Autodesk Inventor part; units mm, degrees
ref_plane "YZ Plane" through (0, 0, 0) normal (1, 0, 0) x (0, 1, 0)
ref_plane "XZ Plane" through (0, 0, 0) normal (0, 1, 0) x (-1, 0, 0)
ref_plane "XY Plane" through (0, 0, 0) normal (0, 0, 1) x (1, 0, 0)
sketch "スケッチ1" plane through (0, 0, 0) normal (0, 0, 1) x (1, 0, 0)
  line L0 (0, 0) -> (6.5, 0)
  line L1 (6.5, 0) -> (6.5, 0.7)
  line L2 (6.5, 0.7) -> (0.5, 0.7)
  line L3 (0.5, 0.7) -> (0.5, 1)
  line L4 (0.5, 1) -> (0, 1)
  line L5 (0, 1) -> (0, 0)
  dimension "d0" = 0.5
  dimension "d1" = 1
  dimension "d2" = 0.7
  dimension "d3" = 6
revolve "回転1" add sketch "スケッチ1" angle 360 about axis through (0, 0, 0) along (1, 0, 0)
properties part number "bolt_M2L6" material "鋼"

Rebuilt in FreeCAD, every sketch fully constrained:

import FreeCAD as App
import Part
import Sketcher

V = App.Vector
Q = App.Units.Quantity

doc = App.newDocument("Part")
params = doc.addObject("Spreadsheet::Sheet", "Params")
for row, (alias, value) in enumerate([
    ("sketch1_width", "6 mm"),
    ("sketch1_height", "1 mm"),
    ("sketch1_width2", "0.5 mm"),
    ("sketch1_height2", "0.7 mm"),
    ("revolution_angle", "360 deg"),
], start=1):
    params.set(f"A{row}", alias)
    params.set(f"B{row}", "=" + value)
    params.setAlias(f"B{row}", alias)

body = doc.addObject("PartDesign::Body", "Body")

# Sketch on XY plane
sketch1 = body.newObject("Sketcher::SketchObject", "Sketch")
sketch1.AttachmentSupport = (doc.getObject("XY_Plane"), [""])
sketch1.MapMode = "FlatFace"
sketch1.addGeometry([
    Part.LineSegment(V(0, 1, 0), V(0, 0, 0)),  # 0
    Part.LineSegment(V(0, 0, 0), V(6.5, 0, 0)),  # 1
    Part.LineSegment(V(6.5, 0, 0), V(6.5, 0.7, 0)),  # 2
    Part.LineSegment(V(6.5, 0.7, 0), V(0.5, 0.7, 0)),  # 3
    Part.LineSegment(V(0.5, 0.7, 0), V(0.5, 1, 0)),  # 4
    Part.LineSegment(V(0.5, 1, 0), V(0, 1, 0)),  # 5
], False)
sketch1.addConstraint([
    Sketcher.Constraint("Coincident", 0, 2, 1, 1),
    Sketcher.Constraint("Coincident", 1, 2, 2, 1),
    Sketcher.Constraint("Coincident", 2, 2, 3, 1),
    Sketcher.Constraint("Coincident", 3, 2, 4, 1),
    Sketcher.Constraint("Coincident", 4, 2, 5, 1),
    Sketcher.Constraint("Coincident", 5, 2, 0, 1),
    Sketcher.Constraint("Vertical", 0),
    Sketcher.Constraint("Horizontal", 1),
    Sketcher.Constraint("Vertical", 2),
    Sketcher.Constraint("Horizontal", 3),
    Sketcher.Constraint("Vertical", 4),
    Sketcher.Constraint("Horizontal", 5),
    Sketcher.Constraint("Coincident", 0, 2, -1, 1),
    Sketcher.Constraint("DistanceX", 3, 2, 3, 1, Q("6 mm")),
    Sketcher.Constraint("DistanceY", 0, 2, 0, 1, Q("1 mm")),
    Sketcher.Constraint("DistanceX", 5, 2, 5, 1, Q("0.5 mm")),
    Sketcher.Constraint("DistanceY", 2, 1, 2, 2, Q("0.7 mm")),
])
sketch1.setExpression("Constraints[13]", "Params.sketch1_width")
sketch1.setExpression("Constraints[14]", "Params.sketch1_height")
sketch1.setExpression("Constraints[15]", "Params.sketch1_width2")
sketch1.setExpression("Constraints[16]", "Params.sketch1_height2")
revolution = body.newObject("PartDesign::Revolution", "Revolution")
revolution.Profile = sketch1
revolution.ReferenceAxis = (sketch1, ["H_Axis"])
revolution.setExpression("Angle", "Params.revolution_angle")

doc.recompute()
